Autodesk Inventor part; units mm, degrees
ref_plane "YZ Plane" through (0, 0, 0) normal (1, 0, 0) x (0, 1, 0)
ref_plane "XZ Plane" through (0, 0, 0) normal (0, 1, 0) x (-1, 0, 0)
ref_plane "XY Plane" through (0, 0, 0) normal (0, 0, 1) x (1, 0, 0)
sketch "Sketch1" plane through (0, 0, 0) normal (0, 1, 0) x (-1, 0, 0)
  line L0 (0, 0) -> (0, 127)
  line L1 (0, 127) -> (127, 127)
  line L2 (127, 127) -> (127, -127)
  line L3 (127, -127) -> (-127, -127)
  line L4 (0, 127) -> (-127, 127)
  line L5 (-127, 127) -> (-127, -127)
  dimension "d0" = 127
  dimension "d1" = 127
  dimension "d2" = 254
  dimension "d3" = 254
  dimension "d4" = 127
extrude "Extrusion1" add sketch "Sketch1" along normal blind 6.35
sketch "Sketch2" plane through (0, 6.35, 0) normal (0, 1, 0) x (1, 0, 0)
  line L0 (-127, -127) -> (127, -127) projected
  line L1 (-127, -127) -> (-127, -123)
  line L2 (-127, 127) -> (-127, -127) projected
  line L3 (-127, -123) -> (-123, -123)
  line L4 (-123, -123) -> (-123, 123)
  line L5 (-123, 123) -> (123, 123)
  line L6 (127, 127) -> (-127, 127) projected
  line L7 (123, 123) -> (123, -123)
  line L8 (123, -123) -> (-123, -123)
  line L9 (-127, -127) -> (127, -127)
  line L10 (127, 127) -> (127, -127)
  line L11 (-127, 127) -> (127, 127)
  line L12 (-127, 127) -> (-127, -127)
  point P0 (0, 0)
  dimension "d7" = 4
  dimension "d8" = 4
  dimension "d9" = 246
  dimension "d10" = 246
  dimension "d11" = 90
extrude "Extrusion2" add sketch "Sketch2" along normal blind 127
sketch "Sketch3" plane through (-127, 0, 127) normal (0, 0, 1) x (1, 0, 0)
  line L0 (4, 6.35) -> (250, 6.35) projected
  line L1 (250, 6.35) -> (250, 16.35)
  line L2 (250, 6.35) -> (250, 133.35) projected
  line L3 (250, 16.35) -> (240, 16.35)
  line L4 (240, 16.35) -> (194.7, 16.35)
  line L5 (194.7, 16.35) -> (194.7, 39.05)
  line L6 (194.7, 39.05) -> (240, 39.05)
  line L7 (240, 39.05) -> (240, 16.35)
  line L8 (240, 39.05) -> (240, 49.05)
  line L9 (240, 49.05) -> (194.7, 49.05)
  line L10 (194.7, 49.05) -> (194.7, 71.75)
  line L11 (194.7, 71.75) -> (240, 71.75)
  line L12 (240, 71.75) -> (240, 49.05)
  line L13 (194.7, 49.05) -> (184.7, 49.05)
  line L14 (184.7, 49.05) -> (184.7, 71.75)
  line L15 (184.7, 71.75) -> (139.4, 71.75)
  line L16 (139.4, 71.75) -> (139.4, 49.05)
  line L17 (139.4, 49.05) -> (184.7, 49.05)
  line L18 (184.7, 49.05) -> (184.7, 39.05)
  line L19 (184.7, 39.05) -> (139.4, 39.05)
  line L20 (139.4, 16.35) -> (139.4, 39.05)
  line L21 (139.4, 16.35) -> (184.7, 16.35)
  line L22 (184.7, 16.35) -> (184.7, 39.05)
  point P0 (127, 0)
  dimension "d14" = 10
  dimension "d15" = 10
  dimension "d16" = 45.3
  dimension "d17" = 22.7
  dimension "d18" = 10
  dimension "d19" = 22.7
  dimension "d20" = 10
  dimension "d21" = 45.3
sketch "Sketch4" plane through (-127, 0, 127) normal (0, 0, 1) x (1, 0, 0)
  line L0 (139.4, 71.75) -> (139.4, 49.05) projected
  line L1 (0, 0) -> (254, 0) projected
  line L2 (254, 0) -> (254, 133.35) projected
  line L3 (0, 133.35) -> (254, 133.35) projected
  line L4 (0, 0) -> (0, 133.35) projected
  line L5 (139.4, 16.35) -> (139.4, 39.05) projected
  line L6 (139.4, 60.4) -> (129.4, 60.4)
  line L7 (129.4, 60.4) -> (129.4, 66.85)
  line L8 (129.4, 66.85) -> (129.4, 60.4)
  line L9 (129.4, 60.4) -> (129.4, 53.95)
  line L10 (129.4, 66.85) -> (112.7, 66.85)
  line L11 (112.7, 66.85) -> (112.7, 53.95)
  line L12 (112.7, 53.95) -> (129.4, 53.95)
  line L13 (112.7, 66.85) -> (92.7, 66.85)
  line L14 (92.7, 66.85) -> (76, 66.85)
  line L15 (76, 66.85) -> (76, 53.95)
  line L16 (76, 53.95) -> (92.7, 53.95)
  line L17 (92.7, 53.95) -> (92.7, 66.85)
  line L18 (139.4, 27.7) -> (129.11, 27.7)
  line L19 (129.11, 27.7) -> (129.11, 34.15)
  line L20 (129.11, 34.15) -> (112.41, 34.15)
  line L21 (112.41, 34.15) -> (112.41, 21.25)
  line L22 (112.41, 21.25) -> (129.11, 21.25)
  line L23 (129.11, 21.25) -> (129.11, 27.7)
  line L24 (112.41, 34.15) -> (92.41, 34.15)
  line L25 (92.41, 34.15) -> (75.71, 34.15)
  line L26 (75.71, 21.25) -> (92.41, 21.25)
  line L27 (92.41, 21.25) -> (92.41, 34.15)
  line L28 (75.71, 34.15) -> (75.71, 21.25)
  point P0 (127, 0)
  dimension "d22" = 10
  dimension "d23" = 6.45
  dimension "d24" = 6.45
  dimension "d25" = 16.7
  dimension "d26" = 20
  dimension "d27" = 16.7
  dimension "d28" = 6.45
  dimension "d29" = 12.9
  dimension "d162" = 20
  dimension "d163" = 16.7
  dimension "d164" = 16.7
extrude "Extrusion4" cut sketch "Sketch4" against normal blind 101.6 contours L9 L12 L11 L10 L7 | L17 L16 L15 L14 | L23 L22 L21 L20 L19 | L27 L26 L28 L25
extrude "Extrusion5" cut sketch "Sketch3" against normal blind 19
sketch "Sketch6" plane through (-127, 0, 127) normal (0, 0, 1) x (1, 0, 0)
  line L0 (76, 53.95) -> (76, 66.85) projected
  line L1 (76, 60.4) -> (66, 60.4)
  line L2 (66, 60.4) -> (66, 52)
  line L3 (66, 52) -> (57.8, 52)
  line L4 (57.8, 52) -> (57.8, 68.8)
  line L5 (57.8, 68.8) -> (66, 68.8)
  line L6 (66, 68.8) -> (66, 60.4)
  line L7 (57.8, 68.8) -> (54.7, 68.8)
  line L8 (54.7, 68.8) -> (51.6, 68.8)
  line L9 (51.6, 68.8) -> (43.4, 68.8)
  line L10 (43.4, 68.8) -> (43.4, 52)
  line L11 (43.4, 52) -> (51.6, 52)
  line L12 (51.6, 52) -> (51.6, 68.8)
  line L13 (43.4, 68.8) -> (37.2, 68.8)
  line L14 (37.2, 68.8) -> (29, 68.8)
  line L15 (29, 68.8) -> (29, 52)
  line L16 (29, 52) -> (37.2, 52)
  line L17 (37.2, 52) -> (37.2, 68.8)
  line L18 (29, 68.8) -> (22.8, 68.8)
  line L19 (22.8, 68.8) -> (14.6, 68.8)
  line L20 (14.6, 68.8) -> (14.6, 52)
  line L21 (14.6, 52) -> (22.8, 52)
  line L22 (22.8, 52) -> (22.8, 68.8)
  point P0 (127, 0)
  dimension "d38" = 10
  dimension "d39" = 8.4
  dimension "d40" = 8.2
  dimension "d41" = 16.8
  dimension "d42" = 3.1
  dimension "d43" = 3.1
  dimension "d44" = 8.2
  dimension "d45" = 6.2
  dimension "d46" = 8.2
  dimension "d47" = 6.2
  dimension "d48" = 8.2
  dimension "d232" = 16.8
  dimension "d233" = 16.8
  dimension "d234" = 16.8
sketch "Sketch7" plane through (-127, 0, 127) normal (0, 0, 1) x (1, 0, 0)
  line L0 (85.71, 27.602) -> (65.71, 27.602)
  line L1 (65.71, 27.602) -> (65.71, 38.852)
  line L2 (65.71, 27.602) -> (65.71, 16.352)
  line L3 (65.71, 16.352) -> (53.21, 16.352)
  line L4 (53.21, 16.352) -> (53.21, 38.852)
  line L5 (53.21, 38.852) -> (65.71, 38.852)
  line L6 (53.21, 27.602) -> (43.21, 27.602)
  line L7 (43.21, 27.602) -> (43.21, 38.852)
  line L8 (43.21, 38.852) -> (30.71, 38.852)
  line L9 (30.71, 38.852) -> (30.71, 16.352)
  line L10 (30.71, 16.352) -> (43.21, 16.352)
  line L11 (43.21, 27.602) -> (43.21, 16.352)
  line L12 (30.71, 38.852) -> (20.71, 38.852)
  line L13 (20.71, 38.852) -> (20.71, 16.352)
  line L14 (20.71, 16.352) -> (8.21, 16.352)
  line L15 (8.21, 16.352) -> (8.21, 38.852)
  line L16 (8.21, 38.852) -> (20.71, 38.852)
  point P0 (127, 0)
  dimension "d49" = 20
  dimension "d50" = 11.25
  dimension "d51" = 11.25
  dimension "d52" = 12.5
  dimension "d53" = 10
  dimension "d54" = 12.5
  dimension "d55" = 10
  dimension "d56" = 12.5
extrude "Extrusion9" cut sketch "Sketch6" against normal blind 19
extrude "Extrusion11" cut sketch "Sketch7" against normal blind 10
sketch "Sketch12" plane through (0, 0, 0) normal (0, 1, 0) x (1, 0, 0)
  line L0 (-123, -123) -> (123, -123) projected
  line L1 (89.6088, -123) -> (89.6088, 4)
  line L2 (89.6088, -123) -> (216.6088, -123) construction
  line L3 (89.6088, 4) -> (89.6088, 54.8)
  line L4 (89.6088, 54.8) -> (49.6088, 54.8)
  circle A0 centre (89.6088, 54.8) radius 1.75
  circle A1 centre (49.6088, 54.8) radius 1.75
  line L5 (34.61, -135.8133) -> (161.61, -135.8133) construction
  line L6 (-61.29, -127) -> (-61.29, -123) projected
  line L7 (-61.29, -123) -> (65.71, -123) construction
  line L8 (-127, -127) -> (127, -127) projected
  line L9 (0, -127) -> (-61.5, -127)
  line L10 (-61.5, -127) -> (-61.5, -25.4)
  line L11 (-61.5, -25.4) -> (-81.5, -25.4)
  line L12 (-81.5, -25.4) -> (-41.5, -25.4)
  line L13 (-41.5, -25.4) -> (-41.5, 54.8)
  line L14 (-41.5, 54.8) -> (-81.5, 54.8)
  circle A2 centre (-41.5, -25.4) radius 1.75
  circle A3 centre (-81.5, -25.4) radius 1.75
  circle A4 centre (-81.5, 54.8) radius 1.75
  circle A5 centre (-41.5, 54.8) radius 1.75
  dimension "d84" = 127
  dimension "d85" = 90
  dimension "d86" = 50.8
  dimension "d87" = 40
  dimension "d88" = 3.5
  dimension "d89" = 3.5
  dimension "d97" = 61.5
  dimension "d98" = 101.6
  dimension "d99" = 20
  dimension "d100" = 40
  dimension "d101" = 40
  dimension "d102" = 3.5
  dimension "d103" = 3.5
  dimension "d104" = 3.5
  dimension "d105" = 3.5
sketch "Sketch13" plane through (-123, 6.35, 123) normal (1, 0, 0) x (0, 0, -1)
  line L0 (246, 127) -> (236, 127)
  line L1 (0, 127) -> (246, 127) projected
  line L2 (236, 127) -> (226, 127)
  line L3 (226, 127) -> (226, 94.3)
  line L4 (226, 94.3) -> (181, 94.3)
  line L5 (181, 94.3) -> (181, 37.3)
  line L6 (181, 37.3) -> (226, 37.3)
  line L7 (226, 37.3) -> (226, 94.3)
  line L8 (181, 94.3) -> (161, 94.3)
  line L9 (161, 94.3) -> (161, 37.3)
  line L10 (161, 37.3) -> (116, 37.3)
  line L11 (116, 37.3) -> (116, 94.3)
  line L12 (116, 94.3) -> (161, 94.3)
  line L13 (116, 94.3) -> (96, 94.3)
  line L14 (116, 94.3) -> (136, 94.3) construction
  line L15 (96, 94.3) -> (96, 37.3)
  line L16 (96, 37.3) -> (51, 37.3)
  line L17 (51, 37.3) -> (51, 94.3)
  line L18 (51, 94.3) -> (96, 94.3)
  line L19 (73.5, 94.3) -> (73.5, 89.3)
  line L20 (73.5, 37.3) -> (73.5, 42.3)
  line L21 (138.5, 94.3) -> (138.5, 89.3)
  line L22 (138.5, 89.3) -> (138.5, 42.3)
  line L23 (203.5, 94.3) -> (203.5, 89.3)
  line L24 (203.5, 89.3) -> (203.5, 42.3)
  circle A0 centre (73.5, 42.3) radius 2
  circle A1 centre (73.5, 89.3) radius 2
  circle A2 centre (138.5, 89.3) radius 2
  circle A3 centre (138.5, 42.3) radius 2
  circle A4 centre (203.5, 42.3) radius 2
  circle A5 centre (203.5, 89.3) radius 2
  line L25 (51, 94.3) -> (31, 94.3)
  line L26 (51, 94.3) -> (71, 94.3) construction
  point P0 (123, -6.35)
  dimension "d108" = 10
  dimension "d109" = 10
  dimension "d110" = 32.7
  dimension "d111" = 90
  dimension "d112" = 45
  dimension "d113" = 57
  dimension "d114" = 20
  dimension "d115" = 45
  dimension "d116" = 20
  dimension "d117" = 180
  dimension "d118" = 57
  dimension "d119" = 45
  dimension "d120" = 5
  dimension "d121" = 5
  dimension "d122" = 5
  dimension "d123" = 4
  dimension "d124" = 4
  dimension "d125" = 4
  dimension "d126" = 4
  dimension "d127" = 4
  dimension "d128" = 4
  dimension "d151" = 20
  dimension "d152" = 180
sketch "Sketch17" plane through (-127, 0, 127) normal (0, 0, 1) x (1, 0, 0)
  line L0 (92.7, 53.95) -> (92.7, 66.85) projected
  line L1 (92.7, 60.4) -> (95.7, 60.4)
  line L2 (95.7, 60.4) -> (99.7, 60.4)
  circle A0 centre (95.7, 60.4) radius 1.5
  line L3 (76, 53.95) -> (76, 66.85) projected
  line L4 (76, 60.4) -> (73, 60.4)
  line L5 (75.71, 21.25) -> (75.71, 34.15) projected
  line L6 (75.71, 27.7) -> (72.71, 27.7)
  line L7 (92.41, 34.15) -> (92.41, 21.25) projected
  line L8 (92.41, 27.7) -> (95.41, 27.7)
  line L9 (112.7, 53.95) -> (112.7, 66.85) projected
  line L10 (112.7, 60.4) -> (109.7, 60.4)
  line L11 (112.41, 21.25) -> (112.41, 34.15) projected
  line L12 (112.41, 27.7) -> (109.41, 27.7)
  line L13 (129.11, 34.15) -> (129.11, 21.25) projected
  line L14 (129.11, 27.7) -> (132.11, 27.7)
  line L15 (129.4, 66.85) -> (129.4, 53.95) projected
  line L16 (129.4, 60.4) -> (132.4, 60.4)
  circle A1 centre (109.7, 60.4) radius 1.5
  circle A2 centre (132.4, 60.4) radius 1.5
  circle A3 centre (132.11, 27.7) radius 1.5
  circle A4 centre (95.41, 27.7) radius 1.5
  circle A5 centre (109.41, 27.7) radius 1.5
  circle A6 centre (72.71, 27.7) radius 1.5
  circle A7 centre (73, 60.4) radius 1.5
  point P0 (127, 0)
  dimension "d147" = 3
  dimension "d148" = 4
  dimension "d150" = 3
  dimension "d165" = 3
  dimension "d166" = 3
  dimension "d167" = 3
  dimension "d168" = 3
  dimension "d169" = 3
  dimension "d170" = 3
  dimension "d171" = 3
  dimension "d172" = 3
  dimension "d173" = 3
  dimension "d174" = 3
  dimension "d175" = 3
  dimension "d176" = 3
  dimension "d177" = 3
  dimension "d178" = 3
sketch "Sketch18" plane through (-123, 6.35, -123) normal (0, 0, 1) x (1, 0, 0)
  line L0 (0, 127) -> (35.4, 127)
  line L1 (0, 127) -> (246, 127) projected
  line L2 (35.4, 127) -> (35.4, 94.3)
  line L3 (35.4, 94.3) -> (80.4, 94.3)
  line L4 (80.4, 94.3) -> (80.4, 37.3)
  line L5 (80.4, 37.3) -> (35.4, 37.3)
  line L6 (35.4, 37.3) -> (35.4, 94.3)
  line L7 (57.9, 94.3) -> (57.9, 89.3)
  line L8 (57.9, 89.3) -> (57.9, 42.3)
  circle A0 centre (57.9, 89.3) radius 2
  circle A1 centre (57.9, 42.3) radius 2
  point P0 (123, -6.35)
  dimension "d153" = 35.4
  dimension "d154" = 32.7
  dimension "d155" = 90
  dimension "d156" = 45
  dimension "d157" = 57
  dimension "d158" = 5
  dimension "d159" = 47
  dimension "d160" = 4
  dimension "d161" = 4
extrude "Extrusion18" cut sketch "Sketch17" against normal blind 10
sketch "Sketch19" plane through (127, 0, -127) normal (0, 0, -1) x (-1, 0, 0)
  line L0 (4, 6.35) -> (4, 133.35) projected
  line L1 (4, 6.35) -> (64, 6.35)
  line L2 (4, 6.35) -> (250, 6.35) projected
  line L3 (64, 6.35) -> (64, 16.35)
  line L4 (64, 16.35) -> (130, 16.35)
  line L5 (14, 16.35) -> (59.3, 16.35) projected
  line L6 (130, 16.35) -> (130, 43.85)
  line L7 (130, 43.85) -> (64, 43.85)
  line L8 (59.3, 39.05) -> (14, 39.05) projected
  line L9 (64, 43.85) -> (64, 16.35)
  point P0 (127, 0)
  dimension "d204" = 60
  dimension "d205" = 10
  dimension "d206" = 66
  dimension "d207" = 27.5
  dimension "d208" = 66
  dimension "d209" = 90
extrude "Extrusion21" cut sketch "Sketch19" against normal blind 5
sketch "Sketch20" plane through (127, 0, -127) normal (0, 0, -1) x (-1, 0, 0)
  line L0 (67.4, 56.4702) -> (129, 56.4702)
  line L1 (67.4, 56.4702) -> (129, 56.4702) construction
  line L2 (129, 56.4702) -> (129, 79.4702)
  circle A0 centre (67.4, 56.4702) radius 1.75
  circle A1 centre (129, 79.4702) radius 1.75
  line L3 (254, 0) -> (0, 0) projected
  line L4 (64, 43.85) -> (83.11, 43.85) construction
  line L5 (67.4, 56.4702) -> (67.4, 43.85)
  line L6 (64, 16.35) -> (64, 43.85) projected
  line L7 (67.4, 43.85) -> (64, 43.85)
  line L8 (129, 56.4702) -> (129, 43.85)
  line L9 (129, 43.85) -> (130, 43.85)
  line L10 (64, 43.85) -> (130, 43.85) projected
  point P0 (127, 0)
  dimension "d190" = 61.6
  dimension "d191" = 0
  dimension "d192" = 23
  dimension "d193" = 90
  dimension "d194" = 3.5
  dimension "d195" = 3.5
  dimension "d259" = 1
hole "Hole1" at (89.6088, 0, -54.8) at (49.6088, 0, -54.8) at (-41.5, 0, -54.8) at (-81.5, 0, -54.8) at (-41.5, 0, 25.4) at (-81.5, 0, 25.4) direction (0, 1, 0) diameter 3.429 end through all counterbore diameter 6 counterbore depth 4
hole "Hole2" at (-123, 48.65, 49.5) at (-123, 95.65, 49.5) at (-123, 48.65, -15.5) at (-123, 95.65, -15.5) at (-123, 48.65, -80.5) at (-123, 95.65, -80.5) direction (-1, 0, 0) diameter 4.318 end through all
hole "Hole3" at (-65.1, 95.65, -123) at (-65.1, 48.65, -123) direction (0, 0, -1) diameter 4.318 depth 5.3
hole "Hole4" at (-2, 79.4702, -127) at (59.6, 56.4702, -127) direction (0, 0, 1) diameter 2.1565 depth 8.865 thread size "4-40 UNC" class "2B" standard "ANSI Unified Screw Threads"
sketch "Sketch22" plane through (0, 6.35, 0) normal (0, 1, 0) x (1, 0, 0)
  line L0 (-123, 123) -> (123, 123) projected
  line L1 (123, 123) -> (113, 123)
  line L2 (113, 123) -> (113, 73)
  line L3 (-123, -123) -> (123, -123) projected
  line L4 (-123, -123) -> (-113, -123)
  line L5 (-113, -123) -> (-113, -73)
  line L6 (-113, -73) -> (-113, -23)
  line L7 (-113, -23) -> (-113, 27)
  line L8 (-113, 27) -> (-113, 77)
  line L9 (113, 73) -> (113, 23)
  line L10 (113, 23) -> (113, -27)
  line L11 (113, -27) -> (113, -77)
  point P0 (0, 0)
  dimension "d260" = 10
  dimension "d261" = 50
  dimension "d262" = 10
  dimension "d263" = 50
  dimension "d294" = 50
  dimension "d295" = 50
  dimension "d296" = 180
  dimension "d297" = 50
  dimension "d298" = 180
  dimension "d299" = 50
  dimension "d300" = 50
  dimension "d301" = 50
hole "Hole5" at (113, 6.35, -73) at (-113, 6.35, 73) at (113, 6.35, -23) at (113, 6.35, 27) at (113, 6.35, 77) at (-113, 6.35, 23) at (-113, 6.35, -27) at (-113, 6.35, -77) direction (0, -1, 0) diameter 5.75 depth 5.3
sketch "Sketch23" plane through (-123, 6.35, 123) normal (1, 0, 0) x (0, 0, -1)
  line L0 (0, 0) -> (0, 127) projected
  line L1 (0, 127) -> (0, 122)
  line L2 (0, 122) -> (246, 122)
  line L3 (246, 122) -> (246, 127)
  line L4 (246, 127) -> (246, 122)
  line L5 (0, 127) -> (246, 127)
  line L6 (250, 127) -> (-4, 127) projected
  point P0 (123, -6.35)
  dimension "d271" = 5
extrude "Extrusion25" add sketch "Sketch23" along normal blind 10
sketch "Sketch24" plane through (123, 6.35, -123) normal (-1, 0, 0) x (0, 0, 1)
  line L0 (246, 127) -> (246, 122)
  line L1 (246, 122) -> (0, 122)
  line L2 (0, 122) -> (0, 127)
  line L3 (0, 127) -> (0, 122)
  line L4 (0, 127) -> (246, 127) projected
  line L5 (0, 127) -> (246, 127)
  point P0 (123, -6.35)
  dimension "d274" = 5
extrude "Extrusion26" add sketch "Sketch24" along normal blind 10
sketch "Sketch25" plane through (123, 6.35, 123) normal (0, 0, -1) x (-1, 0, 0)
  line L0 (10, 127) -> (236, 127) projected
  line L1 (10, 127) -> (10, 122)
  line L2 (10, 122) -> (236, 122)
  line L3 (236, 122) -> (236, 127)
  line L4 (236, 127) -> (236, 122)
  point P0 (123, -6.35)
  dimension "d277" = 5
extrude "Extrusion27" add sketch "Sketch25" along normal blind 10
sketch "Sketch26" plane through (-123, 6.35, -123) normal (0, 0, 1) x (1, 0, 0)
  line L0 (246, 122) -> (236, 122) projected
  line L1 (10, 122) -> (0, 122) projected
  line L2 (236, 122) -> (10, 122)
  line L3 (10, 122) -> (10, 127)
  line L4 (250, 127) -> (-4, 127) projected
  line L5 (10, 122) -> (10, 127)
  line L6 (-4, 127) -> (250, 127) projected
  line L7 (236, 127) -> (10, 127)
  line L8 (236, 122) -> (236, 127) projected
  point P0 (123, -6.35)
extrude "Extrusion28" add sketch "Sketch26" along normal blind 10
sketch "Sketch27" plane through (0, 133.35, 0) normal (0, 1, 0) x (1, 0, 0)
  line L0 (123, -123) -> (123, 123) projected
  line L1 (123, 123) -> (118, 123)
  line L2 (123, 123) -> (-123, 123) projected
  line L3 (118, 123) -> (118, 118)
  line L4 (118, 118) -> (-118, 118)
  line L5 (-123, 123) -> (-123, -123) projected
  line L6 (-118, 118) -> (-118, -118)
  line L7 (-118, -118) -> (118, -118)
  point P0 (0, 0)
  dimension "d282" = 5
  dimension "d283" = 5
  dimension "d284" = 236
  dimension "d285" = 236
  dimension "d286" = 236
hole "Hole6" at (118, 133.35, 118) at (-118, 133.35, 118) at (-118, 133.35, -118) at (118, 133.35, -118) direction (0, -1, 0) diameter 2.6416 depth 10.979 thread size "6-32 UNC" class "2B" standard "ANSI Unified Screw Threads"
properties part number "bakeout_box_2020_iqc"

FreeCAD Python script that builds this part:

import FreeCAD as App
import Part
import Sketcher
from FreeCAD import Vector
Q = App.Units.Quantity


def add_polygon(sketch, points):
    """Adds a closed chain of lines whose ends are joined by coincident constraints."""
    first, n = sketch.GeometryCount, len(points)
    for a, b in zip(points, points[1:] + points[:1]):
        sketch.addGeometry(Part.LineSegment(App.Vector(*a, 0), App.Vector(*b, 0)), False)
    for i in range(n):
        sketch.addConstraint(Sketcher.Constraint("Coincident", first + i, 2, first + (i + 1) % n, 1))

doc = App.newDocument("Part")
body = doc.addObject("PartDesign::Body", "Body")

sketch1 = doc.addObject("Sketcher::SketchObject", "Sketch")
body.addObject(sketch1)
sketch1.AttachmentSupport = (doc.XZ_Plane, [""])
sketch1.MapMode = "FlatFace"
add_polygon(sketch1, [(-127, 127), (127, 127), (127, -127), (-127, -127)])
sketch1.addConstraint(Sketcher.Constraint("Horizontal", 0))
sketch1.addConstraint(Sketcher.Constraint("Vertical", 1))
sketch1.addConstraint(Sketcher.Constraint("Horizontal", 2))
sketch1.addConstraint(Sketcher.Constraint("Vertical", 3))
sketch1.addConstraint(Sketcher.Constraint("Symmetric", 0, 2, 2, 2, -1, 1))
sketch1.addConstraint(Sketcher.Constraint("Equal", 2, 1))
sketch1.addConstraint(Sketcher.Constraint("DistanceX", 0, 1, 0, 2, Q("254 mm")))
pad1 = doc.addObject("PartDesign::Pad", "Pad")
body.addObject(pad1)
pad1.Profile = sketch1
pad1.Length = 6.35
pad1.Reversed = True

sketch2 = doc.addObject("Sketcher::SketchObject", "Sketch001")
body.addObject(sketch2)
sketch2.AttachmentSupport = (doc.XZ_Plane, [""])
sketch2.MapMode = "FlatFace"
sketch2.AttachmentOffset = App.Placement(Vector(0, 0, -6.35), App.Rotation())
add_polygon(sketch2, [(-127, 123), (-127, 127), (127, 127), (127, -127), (-127, -127)])
add_polygon(sketch2, [(123, 123), (-123, 123), (-123, -123), (123, -123)])
sketch2.addConstraint(Sketcher.Constraint("Vertical", 0))
sketch2.addConstraint(Sketcher.Constraint("Horizontal", 1))
sketch2.addConstraint(Sketcher.Constraint("Vertical", 2))
sketch2.addConstraint(Sketcher.Constraint("Horizontal", 3))
sketch2.addConstraint(Sketcher.Constraint("Vertical", 4))
sketch2.addConstraint(Sketcher.Constraint("Horizontal", 5))
sketch2.addConstraint(Sketcher.Constraint("Vertical", 6))
sketch2.addConstraint(Sketcher.Constraint("Horizontal", 7))
sketch2.addConstraint(Sketcher.Constraint("Vertical", 8))
sketch2.addConstraint(Sketcher.Constraint("Symmetric", 0, 2, 2, 2, -1, 1))
sketch2.addConstraint(Sketcher.Constraint("Symmetric", 5, 2, 7, 2, -1, 1))
sketch2.addConstraint(Sketcher.Constraint("Horizontal", 4, 2, 5, 2))
sketch2.addConstraint(Sketcher.Constraint("Equal", 3, 2))
sketch2.addConstraint(Sketcher.Constraint("Equal", 7, 6))
sketch2.addConstraint(Sketcher.Constraint("DistanceX", 5, 2, 5, 1, Q("246 mm")))
sketch2.addConstraint(Sketcher.Constraint("DistanceY", 0, 1, 0, 2, Q("4 mm")))
pad2 = doc.addObject("PartDesign::Pad", "Pad001")
body.addObject(pad2)
pad2.Profile = sketch2
pad2.Length = 127
pad2.Reversed = True

sketch3 = doc.addObject("Sketcher::SketchObject", "Sketch002")
body.addObject(sketch3)
sketch3.AttachmentSupport = (doc.XY_Plane, [""])
sketch3.MapMode = "FlatFace"
sketch3.AttachmentOffset = App.Placement(Vector(0, 0, 127), App.Rotation())
add_polygon(sketch3, [(2.4, 53.95), (2.4, 66.85), (-14.3, 66.85), (-14.3, 53.95)])
add_polygon(sketch3, [(-34.3, 53.95), (-34.3, 66.85), (-51, 66.85), (-51, 53.95)])
add_polygon(sketch3, [(2.11, 21.25), (2.11, 34.15), (-14.59, 34.15), (-14.59, 21.25)])
add_polygon(sketch3, [(-34.59, 21.25), (-34.59, 34.15), (-51.29, 34.15), (-51.29, 21.25)])
sketch3.addConstraint(Sketcher.Constraint("Vertical", 0))
sketch3.addConstraint(Sketcher.Constraint("Horizontal", 1))
sketch3.addConstraint(Sketcher.Constraint("Vertical", 2))
sketch3.addConstraint(Sketcher.Constraint("Horizontal", 3))
sketch3.addConstraint(Sketcher.Constraint("Vertical", 4))
sketch3.addConstraint(Sketcher.Constraint("Horizontal", 5))
sketch3.addConstraint(Sketcher.Constraint("Vertical", 6))
sketch3.addConstraint(Sketcher.Constraint("Horizontal", 7))
sketch3.addConstraint(Sketcher.Constraint("Vertical", 8))
sketch3.addConstraint(Sketcher.Constraint("Horizontal", 9))
sketch3.addConstraint(Sketcher.Constraint("Vertical", 10))
sketch3.addConstraint(Sketcher.Constraint("Horizontal", 11))
sketch3.addConstraint(Sketcher.Constraint("Vertical", 12))
sketch3.addConstraint(Sketcher.Constraint("Horizontal", 13))
sketch3.addConstraint(Sketcher.Constraint("Vertical", 14))
sketch3.addConstraint(Sketcher.Constraint("Horizontal", 15))
sketch3.addConstraint(Sketcher.Constraint("Horizontal", 1, 2, 4, 2))
sketch3.addConstraint(Sketcher.Constraint("Horizontal", 3, 2, 6, 2))
sketch3.addConstraint(Sketcher.Constraint("Horizontal", 9, 2, 12, 2))
sketch3.addConstraint(Sketcher.Constraint("Horizontal", 11, 2, 14, 2))
sketch3.addConstraint(Sketcher.Constraint("Equal", 3, 5))
sketch3.addConstraint(Sketcher.Constraint("Equal", 7, 9))
sketch3.addConstraint(Sketcher.Constraint("Equal", 11, 13))
sketch3.addConstraint(Sketcher.Constraint("Equal", 6, 8))
sketch3.addConstraint(Sketcher.Constraint("DistanceX", 1, 2, 1, 1, Q("16.7 mm")))
sketch3.addConstraint(Sketcher.Constraint("DistanceY", 0, 1, 0, 2, Q("12.9 mm")))
sketch3.addConstraint(Sketcher.Constraint("DistanceX", 4, 2, 1, 2, Q("20 mm")))
sketch3.addConstraint(Sketcher.Constraint("DistanceX", 12, 2, 9, 2, Q("20 mm")))
sketch3.addConstraint(Sketcher.Constraint("DistanceX", 5, 2, -1, 1, Q("51 mm")))
sketch3.addConstraint(Sketcher.Constraint("DistanceY", 8, 2, 3, 2, Q("19.8 mm")))
sketch3.addConstraint(Sketcher.Constraint("DistanceY", -1, 1, 0, 2, Q("66.85 mm")))
sketch3.addConstraint(Sketcher.Constraint("DistanceX", -1, 1, 8, 2, Q("2.11 mm")))
pocket1 = doc.addObject("PartDesign::Pocket", "Pocket")
body.addObject(pocket1)
pocket1.Profile = sketch3
pocket1.Length = 101.6

sketch4 = doc.addObject("Sketcher::SketchObject", "Sketch003")
body.addObject(sketch4)
sketch4.AttachmentSupport = (doc.XY_Plane, [""])
sketch4.MapMode = "FlatFace"
sketch4.AttachmentOffset = App.Placement(Vector(0, 0, 127), App.Rotation())
add_polygon(sketch4, [(57.7, 16.35), (57.7, 39.05), (12.4, 39.05), (12.4, 16.35)])
add_polygon(sketch4, [(12.4, 49.05), (57.7, 49.05), (57.7, 71.75), (12.4, 71.75)])
add_polygon(sketch4, [(67.7, 49.05), (113, 49.05), (113, 71.75), (67.7, 71.75)])
add_polygon(sketch4, [(67.7, 16.35), (113, 16.35), (113, 39.05), (67.7, 39.05)])
sketch4.addConstraint(Sketcher.Constraint("Vertical", 0))
sketch4.addConstraint(Sketcher.Constraint("Horizontal", 1))
sketch4.addConstraint(Sketcher.Constraint("Vertical", 2))
sketch4.addConstraint(Sketcher.Constraint("Horizontal", 3))
sketch4.addConstraint(Sketcher.Constraint("Horizontal", 4))
sketch4.addConstraint(Sketcher.Constraint("Vertical", 5))
sketch4.addConstraint(Sketcher.Constraint("Horizontal", 6))
sketch4.addConstraint(Sketcher.Constraint("Vertical", 7))
sketch4.addConstraint(Sketcher.Constraint("Horizontal", 8))
sketch4.addConstraint(Sketcher.Constraint("Vertical", 9))
sketch4.addConstraint(Sketcher.Constraint("Horizontal", 10))
sketch4.addConstraint(Sketcher.Constraint("Vertical", 11))
sketch4.addConstraint(Sketcher.Constraint("Horizontal", 12))
sketch4.addConstraint(Sketcher.Constraint("Vertical", 13))
sketch4.addConstraint(Sketcher.Constraint("Horizontal", 14))
sketch4.addConstraint(Sketcher.Constraint("Vertical", 15))
sketch4.addConstraint(Sketcher.Constraint("Horizontal", 7, 2, 8, 2))
sketch4.addConstraint(Sketcher.Constraint("Horizontal", 6, 2, 9, 2))
sketch4.addConstraint(Sketcher.Constraint("Horizontal", 3, 2, 12, 2))
sketch4.addConstraint(Sketcher.Constraint("Horizontal", 1, 2, 13, 2))
sketch4.addConstraint(Sketcher.Constraint("Vertical", 3, 2, 4, 2))
sketch4.addConstraint(Sketcher.Constraint("Vertical", 2, 2, 6, 2))
sketch4.addConstraint(Sketcher.Constraint("Vertical", 9, 2, 12, 2))
sketch4.addConstraint(Sketcher.Constraint("Vertical", 11, 2, 14, 2))
sketch4.addConstraint(Sketcher.Constraint("Equal", 6, 8))
sketch4.addConstraint(Sketcher.Constraint("Equal", 2, 5))
sketch4.addConstraint(Sketcher.Constraint("DistanceX", 1, 2, 1, 1, Q("45.3 mm")))
sketch4.addConstraint(Sketcher.Constraint("DistanceY", 0, 1, 0, 2, Q("22.7 mm")))
sketch4.addConstraint(Sketcher.Constraint("DistanceY", 0, 2, 4, 2, Q("10 mm")))
sketch4.addConstraint(Sketcher.Constraint("DistanceX", 5, 2, 10, 2, Q("10 mm")))
sketch4.addConstraint(Sketcher.Constraint("DistanceX", -1, 1, 8, 2, Q("113 mm")))
sketch4.addConstraint(Sketcher.Constraint("DistanceY", -1, 1, 0, 2, Q("39.05 mm")))
pocket2 = doc.addObject("PartDesign::Pocket", "Pocket001")
body.addObject(pocket2)
pocket2.Profile = sketch4
pocket2.Length = 19

sketch5 = doc.addObject("Sketcher::SketchObject", "Sketch004")
body.addObject(sketch5)
sketch5.AttachmentSupport = (doc.XY_Plane, [""])
sketch5.MapMode = "FlatFace"
sketch5.AttachmentOffset = App.Placement(Vector(0, 0, 127), App.Rotation())
add_polygon(sketch5, [(-104.2, 52), (-104.2, 68.8), (-112.4, 68.8), (-112.4, 52)])
add_polygon(sketch5, [(-89.8, 52), (-89.8, 68.8), (-98, 68.8), (-98, 52)])
add_polygon(sketch5, [(-75.4, 52), (-75.4, 68.8), (-83.6, 68.8), (-83.6, 52)])
add_polygon(sketch5, [(-61, 52), (-61, 68.8), (-69.2, 68.8), (-69.2, 52)])
sketch5.addConstraint(Sketcher.Constraint("Vertical", 0))
sketch5.addConstraint(Sketcher.Constraint("Horizontal", 1))
sketch5.addConstraint(Sketcher.Constraint("Vertical", 2))
sketch5.addConstraint(Sketcher.Constraint("Horizontal", 3))
sketch5.addConstraint(Sketcher.Constraint("Vertical", 4))
sketch5.addConstraint(Sketcher.Constraint("Horizontal", 5))
sketch5.addConstraint(Sketcher.Constraint("Vertical", 6))
sketch5.addConstraint(Sketcher.Constraint("Horizontal", 7))
sketch5.addConstraint(Sketcher.Constraint("Vertical", 8))
sketch5.addConstraint(Sketcher.Constraint("Horizontal", 9))
sketch5.addConstraint(Sketcher.Constraint("Vertical", 10))
sketch5.addConstraint(Sketcher.Constraint("Horizontal", 11))
sketch5.addConstraint(Sketcher.Constraint("Vertical", 12))
sketch5.addConstraint(Sketcher.Constraint("Horizontal", 13))
sketch5.addConstraint(Sketcher.Constraint("Vertical", 14))
sketch5.addConstraint(Sketcher.Constraint("Horizontal", 15))
sketch5.addConstraint(Sketcher.Constraint("Horizontal", 1, 2, 4, 2))
sketch5.addConstraint(Sketcher.Constraint("Horizontal", 3, 2, 6, 2))
sketch5.addConstraint(Sketcher.Constraint("Horizontal", 5, 2, 8, 2))
sketch5.addConstraint(Sketcher.Constraint("Horizontal", 7, 2, 10, 2))
sketch5.addConstraint(Sketcher.Constraint("Horizontal", 9, 2, 12, 2))
sketch5.addConstraint(Sketcher.Constraint("Horizontal", 11, 2, 14, 2))
sketch5.addConstraint(Sketcher.Constraint("Equal", 3, 5))
sketch5.addConstraint(Sketcher.Constraint("Equal", 7, 9))
sketch5.addConstraint(Sketcher.Constraint("Equal", 11, 13))
sketch5.addConstraint(Sketcher.Constraint("DistanceX", 1, 2, 1, 1, Q("8.2 mm")))
sketch5.addConstraint(Sketcher.Constraint("DistanceY", 0, 1, 0, 2, Q("16.8 mm")))
sketch5.addConstraint(Sketcher.Constraint("DistanceX", 0, 2, 5, 2, Q("6.2 mm")))
sketch5.addConstraint(Sketcher.Constraint("DistanceX", 4, 2, 9, 2, Q("6.2 mm")))
sketch5.addConstraint(Sketcher.Constraint("DistanceX", 8, 2, 13, 2, Q("6.2 mm")))
sketch5.addConstraint(Sketcher.Constraint("DistanceY", -1, 1, 2, 2, Q("52 mm")))
sketch5.addConstraint(Sketcher.Constraint("DistanceX", 5, 2, -1, 1, Q("98 mm")))
pocket3 = doc.addObject("PartDesign::Pocket", "Pocket002")
body.addObject(pocket3)
pocket3.Profile = sketch5
pocket3.Length = 19

sketch6 = doc.addObject("Sketcher::SketchObject", "Sketch005")
body.addObject(sketch6)
sketch6.AttachmentSupport = (doc.XY_Plane, [""])
sketch6.MapMode = "FlatFace"
sketch6.AttachmentOffset = App.Placement(Vector(0, 0, 127), App.Rotation())
add_polygon(sketch6, [(-61.29, 16.352), (-61.29, 38.852), (-73.79, 38.852), (-73.79, 16.352)])
add_polygon(sketch6, [(-106.29, 16.352), (-106.29, 38.852), (-118.79, 38.852), (-118.79, 16.352)])
add_polygon(sketch6, [(-83.79, 16.352), (-83.79, 38.852), (-96.29, 38.852), (-96.29, 16.352)])
sketch6.addConstraint(Sketcher.Constraint("Vertical", 0))
sketch6.addConstraint(Sketcher.Constraint("Horizontal", 1))
sketch6.addConstraint(Sketcher.Constraint("Vertical", 2))
sketch6.addConstraint(Sketcher.Constraint("Horizontal", 3))
sketch6.addConstraint(Sketcher.Constraint("Vertical", 4))
sketch6.addConstraint(Sketcher.Constraint("Horizontal", 5))
sketch6.addConstraint(Sketcher.Constraint("Vertical", 6))
sketch6.addConstraint(Sketcher.Constraint("Horizontal", 7))
sketch6.addConstraint(Sketcher.Constraint("Vertical", 8))
sketch6.addConstraint(Sketcher.Constraint("Horizontal", 9))
sketch6.addConstraint(Sketcher.Constraint("Vertical", 10))
sketch6.addConstraint(Sketcher.Constraint("Horizontal", 11))
sketch6.addConstraint(Sketcher.Constraint("Horizontal", 1, 2, 4, 2))
sketch6.addConstraint(Sketcher.Constraint("Horizontal", 3, 2, 6, 2))
sketch6.addConstraint(Sketcher.Constraint("Horizontal", 5, 2, 8, 2))
sketch6.addConstraint(Sketcher.Constraint("Horizontal", 7, 2, 10, 2))
sketch6.addConstraint(Sketcher.Constraint("Equal", 3, 5))
sketch6.addConstraint(Sketcher.Constraint("Equal", 7, 9))
sketch6.addConstraint(Sketcher.Constraint("DistanceX", 1, 2, 1, 1, Q("12.5 mm")))
sketch6.addConstraint(Sketcher.Constraint("DistanceX", 8, 2, 1, 2, Q("10 mm")))
sketch6.addConstraint(Sketcher.Constraint("DistanceX", 4, 2, 9, 2, Q("10 mm")))
sketch6.addConstraint(Sketcher.Constraint("DistanceY", 0, 1, 0, 2, Q("22.5 mm")))
sketch6.addConstraint(Sketcher.Constraint("DistanceX", 0, 2, -1, 1, Q("61.29 mm")))
sketch6.addConstraint(Sketcher.Constraint("DistanceY", -1, 1, 0, 2, Q("38.852 mm")))
pocket4 = doc.addObject("PartDesign::Pocket", "Pocket003")
body.addObject(pocket4)
pocket4.Profile = sketch6
pocket4.Length = 10

sketch7 = doc.addObject("Sketcher::SketchObject", "Sketch006")
body.addObject(sketch7)
sketch7.AttachmentSupport = (doc.XY_Plane, [""])
sketch7.MapMode = "FlatFace"
sketch7.AttachmentOffset = App.Placement(Vector(0, 0, 127), App.Rotation())
sketch7.addGeometry(Part.Circle(Vector(-31.3, 60.4, 0), Vector(0, 0, 1), 1.5), False)
sketch7.addGeometry(Part.Circle(Vector(-17.3, 60.4, 0), Vector(0, 0, 1), 1.5), False)
sketch7.addGeometry(Part.Circle(Vector(5.4, 60.4, 0), Vector(0, 0, 1), 1.5), False)
sketch7.addGeometry(Part.Circle(Vector(5.11, 27.7, 0), Vector(0, 0, 1), 1.5), False)
sketch7.addGeometry(Part.Circle(Vector(-31.59, 27.7, 0), Vector(0, 0, 1), 1.5), False)
sketch7.addGeometry(Part.Circle(Vector(-17.59, 27.7, 0), Vector(0, 0, 1), 1.5), False)
sketch7.addGeometry(Part.Circle(Vector(-54.29, 27.7, 0), Vector(0, 0, 1), 1.5), False)
sketch7.addGeometry(Part.Circle(Vector(-54, 60.4, 0), Vector(0, 0, 1), 1.5), False)
sketch7.addConstraint(Sketcher.Constraint("Equal", 0, 1))
sketch7.addConstraint(Sketcher.Constraint("Equal", 1, 2))
sketch7.addConstraint(Sketcher.Constraint("Equal", 2, 3))
sketch7.addConstraint(Sketcher.Constraint("Equal", 3, 4))
sketch7.addConstraint(Sketcher.Constraint("Equal", 4, 5))
sketch7.addConstraint(Sketcher.Constraint("Equal", 5, 6))
sketch7.addConstraint(Sketcher.Constraint("Equal", 6, 7))
sketch7.addConstraint(Sketcher.Constraint("Horizontal", 0, 3, 1, 3))
sketch7.addConstraint(Sketcher.Constraint("Horizontal", 1, 3, 2, 3))
sketch7.addConstraint(Sketcher.Constraint("Horizontal", 3, 3, 4, 3))
sketch7.addConstraint(Sketcher.Constraint("Horizontal", 4, 3, 5, 3))
sketch7.addConstraint(Sketcher.Constraint("Horizontal", 5, 3, 6, 3))
sketch7.addConstraint(Sketcher.Constraint("Horizontal", 2, 3, 7, 3))
sketch7.addConstraint(Sketcher.Constraint("Diameter", 0, Q("3 mm")))
sketch7.addConstraint(Sketcher.Constraint("DistanceX", 7, 3, -1, 1, Q("54 mm")))
sketch7.addConstraint(Sketcher.Constraint("DistanceX", 0, 3, 1, 3, Q("14 mm")))
sketch7.addConstraint(Sketcher.Constraint("DistanceX", 4, 3, 5, 3, Q("14 mm")))
sketch7.addConstraint(Sketcher.Constraint("DistanceX", 0, 3, -1, 1, Q("31.3 mm")))
sketch7.addConstraint(Sketcher.Constraint("DistanceY", -1, 1, 0, 3, Q("60.4 mm")))
sketch7.addConstraint(Sketcher.Constraint("DistanceX", -1, 1, 2, 3, Q("5.4 mm")))
sketch7.addConstraint(Sketcher.Constraint("DistanceY", -1, 1, 3, 3, Q("27.7 mm")))
sketch7.addConstraint(Sketcher.Constraint("DistanceX", 4, 3, 3, 3, Q("36.7 mm")))
sketch7.addConstraint(Sketcher.Constraint("DistanceX", 6, 3, 4, 3, Q("22.7 mm")))
sketch7.addConstraint(Sketcher.Constraint("DistanceX", -1, 1, 3, 3, Q("5.11 mm")))
pocket5 = doc.addObject("PartDesign::Pocket", "Pocket004")
body.addObject(pocket5)
pocket5.Profile = sketch7
pocket5.Length = 10

sketch8 = doc.addObject("Sketcher::SketchObject", "Sketch007")
body.addObject(sketch8)
sketch8.AttachmentSupport = (doc.XY_Plane, [""])
sketch8.MapMode = "FlatFace"
sketch8.AttachmentOffset = App.Placement(Vector(0, 0, -127), App.Rotation())
add_polygon(sketch8, [(63, 43.85), (63, 16.35), (-3, 16.35), (-3, 43.85)])
sketch8.addConstraint(Sketcher.Constraint("Vertical", 0))
sketch8.addConstraint(Sketcher.Constraint("Horizontal", 1))
sketch8.addConstraint(Sketcher.Constraint("Vertical", 2))
sketch8.addConstraint(Sketcher.Constraint("Horizontal", 3))
sketch8.addConstraint(Sketcher.Constraint("DistanceX", 1, 2, 1, 1, Q("66 mm")))
sketch8.addConstraint(Sketcher.Constraint("DistanceY", 0, 2, 0, 1, Q("27.5 mm")))
sketch8.addConstraint(Sketcher.Constraint("DistanceX", -1, 1, 0, 2, Q("63 mm")))
sketch8.addConstraint(Sketcher.Constraint("DistanceY", -1, 1, 0, 2, Q("16.35 mm")))
pocket6 = doc.addObject("PartDesign::Pocket", "Pocket005")
body.addObject(pocket6)
pocket6.Profile = sketch8
pocket6.Length = 5
pocket6.Reversed = True

sketch9 = doc.addObject("Sketcher::SketchObject", "Sketch008")
body.addObject(sketch9)
sketch9.AttachmentSupport = (doc.XZ_Plane, [""])
sketch9.MapMode = "FlatFace"
sketch9.addGeometry(Part.Circle(Vector(89.6088, -54.8, 0), Vector(0, 0, 1), 1.7145), False)
sketch9.addGeometry(Part.Circle(Vector(49.6088, -54.8, 0), Vector(0, 0, 1), 1.7145), False)
sketch9.addGeometry(Part.Circle(Vector(-41.5, -54.8, 0), Vector(0, 0, 1), 1.7145), False)
sketch9.addGeometry(Part.Circle(Vector(-81.5, -54.8, 0), Vector(0, 0, 1), 1.7145), False)
sketch9.addGeometry(Part.Circle(Vector(-41.5, 25.4, 0), Vector(0, 0, 1), 1.7145), False)
sketch9.addGeometry(Part.Circle(Vector(-81.5, 25.4, 0), Vector(0, 0, 1), 1.7145), False)
sketch9.addConstraint(Sketcher.Constraint("Equal", 0, 1))
sketch9.addConstraint(Sketcher.Constraint("Equal", 1, 2))
sketch9.addConstraint(Sketcher.Constraint("Equal", 2, 3))
sketch9.addConstraint(Sketcher.Constraint("Equal", 3, 4))
sketch9.addConstraint(Sketcher.Constraint("Equal", 4, 5))
sketch9.addConstraint(Sketcher.Constraint("Horizontal", 0, 3, 1, 3))
sketch9.addConstraint(Sketcher.Constraint("Horizontal", 1, 3, 2, 3))
sketch9.addConstraint(Sketcher.Constraint("Horizontal", 2, 3, 3, 3))
sketch9.addConstraint(Sketcher.Constraint("Horizontal", 4, 3, 5, 3))
sketch9.addConstraint(Sketcher.Constraint("Vertical", 2, 3, 4, 3))
sketch9.addConstraint(Sketcher.Constraint("Vertical", 3, 3, 5, 3))
sketch9.addConstraint(Sketcher.Constraint("Diameter", 0, Q("3.429 mm")))
sketch9.addConstraint(Sketcher.Constraint("DistanceX", 1, 3, 0, 3, Q("40 mm")))
sketch9.addConstraint(Sketcher.Constraint("DistanceX", 3, 3, 2, 3, Q("40 mm")))
sketch9.addConstraint(Sketcher.Constraint("DistanceY", 0, 3, -1, 1, Q("54.8 mm")))
sketch9.addConstraint(Sketcher.Constraint("DistanceX", 2, 3, -1, 1, Q("41.5 mm")))
sketch9.addConstraint(Sketcher.Constraint("DistanceY", -1, 1, 4, 3, Q("25.4 mm")))
sketch9.addConstraint(Sketcher.Constraint("DistanceX", -1, 1, 0, 3, Q("89.6088 mm")))
doc.recompute()
hole = doc.addObject("PartDesign::Hole", "Hole")
body.addObject(hole)
hole.Profile = sketch9
hole.ThreadType = "None"
hole.Diameter = 3.429
hole.DepthType = "ThroughAll"
hole.HoleCutType = "Counterbore"
hole.HoleCutDiameter = 6
hole.HoleCutDepth = 4

sketch10 = doc.addObject("Sketcher::SketchObject", "Sketch009")
body.addObject(sketch10)
sketch10.AttachmentSupport = (doc.YZ_Plane, [""])
sketch10.MapMode = "FlatFace"
sketch10.AttachmentOffset = App.Placement(Vector(0, 0, -123), App.Rotation())
sketch10.addGeometry(Part.Circle(Vector(48.65, 49.5, 0), Vector(0, 0, 1), 2.159), False)
sketch10.addGeometry(Part.Circle(Vector(95.65, 49.5, 0), Vector(0, 0, 1), 2.159), False)
sketch10.addGeometry(Part.Circle(Vector(48.65, -15.5, 0), Vector(0, 0, 1), 2.159), False)
sketch10.addGeometry(Part.Circle(Vector(95.65, -15.5, 0), Vector(0, 0, 1), 2.159), False)
sketch10.addGeometry(Part.Circle(Vector(48.65, -80.5, 0), Vector(0, 0, 1), 2.159), False)
sketch10.addGeometry(Part.Circle(Vector(95.65, -80.5, 0), Vector(0, 0, 1), 2.159), False)
sketch10.addConstraint(Sketcher.Constraint("Equal", 0, 1))
sketch10.addConstraint(Sketcher.Constraint("Equal", 1, 2))
sketch10.addConstraint(Sketcher.Constraint("Equal", 2, 3))
sketch10.addConstraint(Sketcher.Constraint("Equal", 3, 4))
sketch10.addConstraint(Sketcher.Constraint("Equal", 4, 5))
sketch10.addConstraint(Sketcher.Constraint("Horizontal", 0, 3, 1, 3))
sketch10.addConstraint(Sketcher.Constraint("Horizontal", 2, 3, 3, 3))
sketch10.addConstraint(Sketcher.Constraint("Horizontal", 4, 3, 5, 3))
sketch10.addConstraint(Sketcher.Constraint("Vertical", 0, 3, 2, 3))
sketch10.addConstraint(Sketcher.Constraint("Vertical", 1, 3, 3, 3))
sketch10.addConstraint(Sketcher.Constraint("Vertical", 2, 3, 4, 3))
sketch10.addConstraint(Sketcher.Constraint("Vertical", 3, 3, 5, 3))
sketch10.addConstraint(Sketcher.Constraint("Diameter", 0, Q("4.318 mm")))
sketch10.addConstraint(Sketcher.Constraint("DistanceX", 0, 3, 1, 3, Q("47 mm")))
sketch10.addConstraint(Sketcher.Constraint("DistanceY", 2, 3, 0, 3, Q("65 mm")))
sketch10.addConstraint(Sketcher.Constraint("DistanceY", 4, 3, 2, 3, Q("65 mm")))
sketch10.addConstraint(Sketcher.Constraint("DistanceY", -1, 1, 0, 3, Q("49.5 mm")))
sketch10.addConstraint(Sketcher.Constraint("DistanceX", -1, 1, 0, 3, Q("48.65 mm")))
doc.recompute()
hole2 = doc.addObject("PartDesign::Hole", "Hole001")
body.addObject(hole2)
hole2.Profile = sketch10
hole2.ThreadType = "None"
hole2.Diameter = 4.318
hole2.DepthType = "ThroughAll"

sketch11 = doc.addObject("Sketcher::SketchObject", "Sketch010")
body.addObject(sketch11)
sketch11.AttachmentSupport = (doc.XY_Plane, [""])
sketch11.MapMode = "FlatFace"
sketch11.AttachmentOffset = App.Placement(Vector(0, 0, -123), App.Rotation())
sketch11.addGeometry(Part.Circle(Vector(-65.1, 95.65, 0), Vector(0, 0, 1), 2.159), False)
sketch11.addGeometry(Part.Circle(Vector(-65.1, 48.65, 0), Vector(0, 0, 1), 2.159), False)
sketch11.addConstraint(Sketcher.Constraint("Equal", 0, 1))
sketch11.addConstraint(Sketcher.Constraint("Vertical", 0, 3, 1, 3))
sketch11.addConstraint(Sketcher.Constraint("Diameter", 0, Q("4.318 mm")))
sketch11.addConstraint(Sketcher.Constraint("DistanceY", 1, 3, 0, 3, Q("47 mm")))
sketch11.addConstraint(Sketcher.Constraint("DistanceX", 0, 3, -1, 1, Q("65.1 mm")))
sketch11.addConstraint(Sketcher.Constraint("DistanceY", -1, 1, 0, 3, Q("95.65 mm")))
doc.recompute()
hole3 = doc.addObject("PartDesign::Hole", "Hole002")
body.addObject(hole3)
hole3.Profile = sketch11
hole3.ThreadType = "None"
hole3.Diameter = 4.318
hole3.DepthType = "Dimension"
hole3.Depth = 5.3
hole3.DrillPoint = "Flat"

sketch12 = doc.addObject("Sketcher::SketchObject", "Sketch011")
body.addObject(sketch12)
sketch12.AttachmentSupport = (doc.XY_Plane, [""])
sketch12.MapMode = "FlatFace"
sketch12.AttachmentOffset = App.Placement(Vector(0, 0, -127), App.Rotation())
sketch12.addGeometry(Part.Circle(Vector(-2, 79.4702, 0), Vector(0, 0, 1), 1.07825), False)
sketch12.addGeometry(Part.Circle(Vector(59.6, 56.4702, 0), Vector(0, 0, 1), 1.07825), False)
sketch12.addConstraint(Sketcher.Constraint("Equal", 0, 1))
sketch12.addConstraint(Sketcher.Constraint("DistanceX", 0, 3, -1, 1, Q("2 mm")))
sketch12.addConstraint(Sketcher.Constraint("DistanceY", 1, 3, 0, 3, Q("23 mm")))
sketch12.addConstraint(Sketcher.Constraint("Diameter", 0, Q("2.1565 mm")))
sketch12.addConstraint(Sketcher.Constraint("DistanceX", -1, 1, 1, 3, Q("59.6 mm")))
sketch12.addConstraint(Sketcher.Constraint("DistanceY", -1, 1, 0, 3, Q("79.4702 mm")))
doc.recompute()
hole4 = doc.addObject("PartDesign::Hole", "Hole003")
body.addObject(hole4)
hole4.Profile = sketch12
hole4.ThreadType = "None"
hole4.Diameter = 2.1565
hole4.DepthType = "Dimension"
hole4.Depth = 8.865
hole4.DrillPoint = "Flat"
hole4.Reversed = True

sketch13 = doc.addObject("Sketcher::SketchObject", "Sketch012")
body.addObject(sketch13)
sketch13.AttachmentSupport = (doc.XZ_Plane, [""])
sketch13.MapMode = "FlatFace"
sketch13.AttachmentOffset = App.Placement(Vector(0, 0, -6.35), App.Rotation())
sketch13.addGeometry(Part.Circle(Vector(113, -73, 0), Vector(0, 0, 1), 2.875), False)
sketch13.addGeometry(Part.Circle(Vector(-113, 73, 0), Vector(0, 0, 1), 2.875), False)
sketch13.addGeometry(Part.Circle(Vector(113, -23, 0), Vector(0, 0, 1), 2.875), False)
sketch13.addGeometry(Part.Circle(Vector(113, 27, 0), Vector(0, 0, 1), 2.875), False)
sketch13.addGeometry(Part.Circle(Vector(113, 77, 0), Vector(0, 0, 1), 2.875), False)
sketch13.addGeometry(Part.Circle(Vector(-113, 23, 0), Vector(0, 0, 1), 2.875), False)
sketch13.addGeometry(Part.Circle(Vector(-113, -27, 0), Vector(0, 0, 1), 2.875), False)
sketch13.addGeometry(Part.Circle(Vector(-113, -77, 0), Vector(0, 0, 1), 2.875), False)
sketch13.addConstraint(Sketcher.Constraint("Equal", 0, 1))
sketch13.addConstraint(Sketcher.Constraint("Equal", 1, 2))
sketch13.addConstraint(Sketcher.Constraint("Equal", 2, 3))
sketch13.addConstraint(Sketcher.Constraint("Equal", 3, 4))
sketch13.addConstraint(Sketcher.Constraint("Equal", 4, 5))
sketch13.addConstraint(Sketcher.Constraint("Equal", 5, 6))
sketch13.addConstraint(Sketcher.Constraint("Equal", 6, 7))
sketch13.addConstraint(Sketcher.Constraint("Symmetric", 0, 3, 1, 3, -1, 1))
sketch13.addConstraint(Sketcher.Constraint("Symmetric", 2, 3, 5, 3, -1, 1))
sketch13.addConstraint(Sketcher.Constraint("Symmetric", 3, 3, 6, 3, -1, 1))
sketch13.addConstraint(Sketcher.Constraint("Symmetric", 4, 3, 7, 3, -1, 1))
sketch13.addConstraint(Sketcher.Constraint("Vertical", 0, 3, 2, 3))
sketch13.addConstraint(Sketcher.Constraint("Vertical", 2, 3, 3, 3))
sketch13.addConstraint(Sketcher.Constraint("Vertical", 3, 3, 4, 3))
sketch13.addConstraint(Sketcher.Constraint("Diameter", 0, Q("5.75 mm")))
sketch13.addConstraint(Sketcher.Constraint("DistanceX", -1, 1, 0, 3, Q("113 mm")))
sketch13.addConstraint(Sketcher.Constraint("DistanceY", 0, 3, -1, 1, Q("73 mm")))
sketch13.addConstraint(Sketcher.Constraint("DistanceY", 2, 3, -1, 1, Q("23 mm")))
sketch13.addConstraint(Sketcher.Constraint("DistanceY", -1, 1, 3, 3, Q("27 mm")))
sketch13.addConstraint(Sketcher.Constraint("DistanceY", -1, 1, 4, 3, Q("77 mm")))
doc.recompute()
hole5 = doc.addObject("PartDesign::Hole", "Hole004")
body.addObject(hole5)
hole5.Profile = sketch13
hole5.ThreadType = "None"
hole5.Diameter = 5.75
hole5.DepthType = "Dimension"
hole5.Depth = 5.3
hole5.DrillPoint = "Flat"
hole5.Reversed = True

sketch14 = doc.addObject("Sketcher::SketchObject", "Sketch013")
body.addObject(sketch14)
sketch14.AttachmentSupport = (doc.YZ_Plane, [""])
sketch14.MapMode = "FlatFace"
sketch14.AttachmentOffset = App.Placement(Vector(0, 0, -123), App.Rotation())
add_polygon(sketch14, [(133.35, 123), (128.35, 123), (128.35, -123), (133.35, -123)])
sketch14.addConstraint(Sketcher.Constraint("Horizontal", 0))
sketch14.addConstraint(Sketcher.Constraint("Vertical", 1))
sketch14.addConstraint(Sketcher.Constraint("Horizontal", 2))
sketch14.addConstraint(Sketcher.Constraint("Vertical", 3))
sketch14.addConstraint(Sketcher.Constraint("DistanceX", 0, 2, 0, 1, Q("5 mm")))
sketch14.addConstraint(Sketcher.Constraint("DistanceY", 1, 2, 1, 1, Q("246 mm")))
sketch14.addConstraint(Sketcher.Constraint("DistanceY", -1, 1, 0, 2, Q("123 mm")))
sketch14.addConstraint(Sketcher.Constraint("DistanceX", -1, 1, 0, 2, Q("128.35 mm")))
pad3 = doc.addObject("PartDesign::Pad", "Pad002")
body.addObject(pad3)
pad3.Profile = sketch14
pad3.Length = 10

sketch15 = doc.addObject("Sketcher::SketchObject", "Sketch014")
body.addObject(sketch15)
sketch15.AttachmentSupport = (doc.YZ_Plane, [""])
sketch15.MapMode = "FlatFace"
sketch15.AttachmentOffset = App.Placement(Vector(0, 0, 123), App.Rotation())
add_polygon(sketch15, [(128.35, 123), (133.35, 123), (133.35, -123), (128.35, -123)])
sketch15.addConstraint(Sketcher.Constraint("Horizontal", 0))
sketch15.addConstraint(Sketcher.Constraint("Vertical", 1))
sketch15.addConstraint(Sketcher.Constraint("Horizontal", 2))
sketch15.addConstraint(Sketcher.Constraint("Vertical", 3))
sketch15.addConstraint(Sketcher.Constraint("DistanceX", 0, 1, 0, 2, Q("5 mm")))
sketch15.addConstraint(Sketcher.Constraint("DistanceY", 1, 2, 1, 1, Q("246 mm")))
sketch15.addConstraint(Sketcher.Constraint("DistanceY", -1, 1, 0, 2, Q("123 mm")))
sketch15.addConstraint(Sketcher.Constraint("DistanceX", -1, 1, 0, 2, Q("133.35 mm")))
pad4 = doc.addObject("PartDesign::Pad", "Pad003")
body.addObject(pad4)
pad4.Profile = sketch15
pad4.Length = 10
pad4.Reversed = True

sketch16 = doc.addObject("Sketcher::SketchObject", "Sketch015")
body.addObject(sketch16)
sketch16.AttachmentSupport = (doc.XY_Plane, [""])
sketch16.MapMode = "FlatFace"
sketch16.AttachmentOffset = App.Placement(Vector(0, 0, 123), App.Rotation())
add_polygon(sketch16, [(-113, 133.35), (113, 133.35), (113, 128.35), (-113, 128.35)])
sketch16.addConstraint(Sketcher.Constraint("Horizontal", 0))
sketch16.addConstraint(Sketcher.Constraint("Vertical", 1))
sketch16.addConstraint(Sketcher.Constraint("Horizontal", 2))
sketch16.addConstraint(Sketcher.Constraint("Vertical", 3))
sketch16.addConstraint(Sketcher.Constraint("DistanceY", 1, 2, 1, 1, Q("5 mm")))
sketch16.addConstraint(Sketcher.Constraint("DistanceX", 0, 1, 0, 2, Q("226 mm")))
sketch16.addConstraint(Sketcher.Constraint("DistanceX", -1, 1, 0, 2, Q("113 mm")))
sketch16.addConstraint(Sketcher.Constraint("DistanceY", -1, 1, 0, 2, Q("133.35 mm")))
pad5 = doc.addObject("PartDesign::Pad", "Pad004")
body.addObject(pad5)
pad5.Profile = sketch16
pad5.Length = 10
pad5.Reversed = True

sketch17 = doc.addObject("Sketcher::SketchObject", "Sketch016")
body.addObject(sketch17)
sketch17.AttachmentSupport = (doc.XY_Plane, [""])
sketch17.MapMode = "FlatFace"
sketch17.AttachmentOffset = App.Placement(Vector(0, 0, -123), App.Rotation())
add_polygon(sketch17, [(-113, 128.35), (113, 128.35), (113, 133.35), (-113, 133.35)])
sketch17.addConstraint(Sketcher.Constraint("Horizontal", 0))
sketch17.addConstraint(Sketcher.Constraint("Vertical", 1))
sketch17.addConstraint(Sketcher.Constraint("Horizontal", 2))
sketch17.addConstraint(Sketcher.Constraint("Vertical", 3))
sketch17.addConstraint(Sketcher.Constraint("DistanceX", 0, 1, 0, 2, Q("226 mm")))
sketch17.addConstraint(Sketcher.Constraint("DistanceY", 1, 1, 1, 2, Q("5 mm")))
sketch17.addConstraint(Sketcher.Constraint("DistanceX", -1, 1, 0, 2, Q("113 mm")))
sketch17.addConstraint(Sketcher.Constraint("DistanceY", -1, 1, 0, 2, Q("128.35 mm")))
pad6 = doc.addObject("PartDesign::Pad", "Pad005")
body.addObject(pad6)
pad6.Profile = sketch17
pad6.Length = 10

sketch18 = doc.addObject("Sketcher::SketchObject", "Sketch017")
body.addObject(sketch18)
sketch18.AttachmentSupport = (doc.XZ_Plane, [""])
sketch18.MapMode = "FlatFace"
sketch18.AttachmentOffset = App.Placement(Vector(0, 0, -133.35), App.Rotation())
sketch18.addGeometry(Part.Circle(Vector(118, 118, 0), Vector(0, 0, 1), 1.3208), False)
sketch18.addGeometry(Part.Circle(Vector(-118, 118, 0), Vector(0, 0, 1), 1.3208), False)
sketch18.addGeometry(Part.Circle(Vector(-118, -118, 0), Vector(0, 0, 1), 1.3208), False)
sketch18.addGeometry(Part.Circle(Vector(118, -118, 0), Vector(0, 0, 1), 1.3208), False)
sketch18.addConstraint(Sketcher.Constraint("Equal", 0, 1))
sketch18.addConstraint(Sketcher.Constraint("Equal", 1, 2))
sketch18.addConstraint(Sketcher.Constraint("Equal", 2, 3))
sketch18.addConstraint(Sketcher.Constraint("Symmetric", 0, 3, 2, 3, -1, 1))
sketch18.addConstraint(Sketcher.Constraint("Symmetric", 1, 3, 3, 3, -1, 1))
sketch18.addConstraint(Sketcher.Constraint("Symmetric", 0, 3, 1, 3, -2))
sketch18.addConstraint(Sketcher.Constraint("DistanceX", -1, 1, 0, 3, Q("118 mm")))
sketch18.addConstraint(Sketcher.Constraint("DistanceY", -1, 1, 0, 3, Q("118 mm")))
sketch18.addConstraint(Sketcher.Constraint("Diameter", 0, Q("2.6416 mm")))
doc.recompute()
hole6 = doc.addObject("PartDesign::Hole", "Hole005")
body.addObject(hole6)
hole6.Profile = sketch18
hole6.ThreadType = "None"
hole6.Diameter = 2.6416
hole6.DepthType = "Dimension"
hole6.Depth = 10.979
hole6.DrillPoint = "Flat"
hole6.Reversed = True

doc.recompute()
